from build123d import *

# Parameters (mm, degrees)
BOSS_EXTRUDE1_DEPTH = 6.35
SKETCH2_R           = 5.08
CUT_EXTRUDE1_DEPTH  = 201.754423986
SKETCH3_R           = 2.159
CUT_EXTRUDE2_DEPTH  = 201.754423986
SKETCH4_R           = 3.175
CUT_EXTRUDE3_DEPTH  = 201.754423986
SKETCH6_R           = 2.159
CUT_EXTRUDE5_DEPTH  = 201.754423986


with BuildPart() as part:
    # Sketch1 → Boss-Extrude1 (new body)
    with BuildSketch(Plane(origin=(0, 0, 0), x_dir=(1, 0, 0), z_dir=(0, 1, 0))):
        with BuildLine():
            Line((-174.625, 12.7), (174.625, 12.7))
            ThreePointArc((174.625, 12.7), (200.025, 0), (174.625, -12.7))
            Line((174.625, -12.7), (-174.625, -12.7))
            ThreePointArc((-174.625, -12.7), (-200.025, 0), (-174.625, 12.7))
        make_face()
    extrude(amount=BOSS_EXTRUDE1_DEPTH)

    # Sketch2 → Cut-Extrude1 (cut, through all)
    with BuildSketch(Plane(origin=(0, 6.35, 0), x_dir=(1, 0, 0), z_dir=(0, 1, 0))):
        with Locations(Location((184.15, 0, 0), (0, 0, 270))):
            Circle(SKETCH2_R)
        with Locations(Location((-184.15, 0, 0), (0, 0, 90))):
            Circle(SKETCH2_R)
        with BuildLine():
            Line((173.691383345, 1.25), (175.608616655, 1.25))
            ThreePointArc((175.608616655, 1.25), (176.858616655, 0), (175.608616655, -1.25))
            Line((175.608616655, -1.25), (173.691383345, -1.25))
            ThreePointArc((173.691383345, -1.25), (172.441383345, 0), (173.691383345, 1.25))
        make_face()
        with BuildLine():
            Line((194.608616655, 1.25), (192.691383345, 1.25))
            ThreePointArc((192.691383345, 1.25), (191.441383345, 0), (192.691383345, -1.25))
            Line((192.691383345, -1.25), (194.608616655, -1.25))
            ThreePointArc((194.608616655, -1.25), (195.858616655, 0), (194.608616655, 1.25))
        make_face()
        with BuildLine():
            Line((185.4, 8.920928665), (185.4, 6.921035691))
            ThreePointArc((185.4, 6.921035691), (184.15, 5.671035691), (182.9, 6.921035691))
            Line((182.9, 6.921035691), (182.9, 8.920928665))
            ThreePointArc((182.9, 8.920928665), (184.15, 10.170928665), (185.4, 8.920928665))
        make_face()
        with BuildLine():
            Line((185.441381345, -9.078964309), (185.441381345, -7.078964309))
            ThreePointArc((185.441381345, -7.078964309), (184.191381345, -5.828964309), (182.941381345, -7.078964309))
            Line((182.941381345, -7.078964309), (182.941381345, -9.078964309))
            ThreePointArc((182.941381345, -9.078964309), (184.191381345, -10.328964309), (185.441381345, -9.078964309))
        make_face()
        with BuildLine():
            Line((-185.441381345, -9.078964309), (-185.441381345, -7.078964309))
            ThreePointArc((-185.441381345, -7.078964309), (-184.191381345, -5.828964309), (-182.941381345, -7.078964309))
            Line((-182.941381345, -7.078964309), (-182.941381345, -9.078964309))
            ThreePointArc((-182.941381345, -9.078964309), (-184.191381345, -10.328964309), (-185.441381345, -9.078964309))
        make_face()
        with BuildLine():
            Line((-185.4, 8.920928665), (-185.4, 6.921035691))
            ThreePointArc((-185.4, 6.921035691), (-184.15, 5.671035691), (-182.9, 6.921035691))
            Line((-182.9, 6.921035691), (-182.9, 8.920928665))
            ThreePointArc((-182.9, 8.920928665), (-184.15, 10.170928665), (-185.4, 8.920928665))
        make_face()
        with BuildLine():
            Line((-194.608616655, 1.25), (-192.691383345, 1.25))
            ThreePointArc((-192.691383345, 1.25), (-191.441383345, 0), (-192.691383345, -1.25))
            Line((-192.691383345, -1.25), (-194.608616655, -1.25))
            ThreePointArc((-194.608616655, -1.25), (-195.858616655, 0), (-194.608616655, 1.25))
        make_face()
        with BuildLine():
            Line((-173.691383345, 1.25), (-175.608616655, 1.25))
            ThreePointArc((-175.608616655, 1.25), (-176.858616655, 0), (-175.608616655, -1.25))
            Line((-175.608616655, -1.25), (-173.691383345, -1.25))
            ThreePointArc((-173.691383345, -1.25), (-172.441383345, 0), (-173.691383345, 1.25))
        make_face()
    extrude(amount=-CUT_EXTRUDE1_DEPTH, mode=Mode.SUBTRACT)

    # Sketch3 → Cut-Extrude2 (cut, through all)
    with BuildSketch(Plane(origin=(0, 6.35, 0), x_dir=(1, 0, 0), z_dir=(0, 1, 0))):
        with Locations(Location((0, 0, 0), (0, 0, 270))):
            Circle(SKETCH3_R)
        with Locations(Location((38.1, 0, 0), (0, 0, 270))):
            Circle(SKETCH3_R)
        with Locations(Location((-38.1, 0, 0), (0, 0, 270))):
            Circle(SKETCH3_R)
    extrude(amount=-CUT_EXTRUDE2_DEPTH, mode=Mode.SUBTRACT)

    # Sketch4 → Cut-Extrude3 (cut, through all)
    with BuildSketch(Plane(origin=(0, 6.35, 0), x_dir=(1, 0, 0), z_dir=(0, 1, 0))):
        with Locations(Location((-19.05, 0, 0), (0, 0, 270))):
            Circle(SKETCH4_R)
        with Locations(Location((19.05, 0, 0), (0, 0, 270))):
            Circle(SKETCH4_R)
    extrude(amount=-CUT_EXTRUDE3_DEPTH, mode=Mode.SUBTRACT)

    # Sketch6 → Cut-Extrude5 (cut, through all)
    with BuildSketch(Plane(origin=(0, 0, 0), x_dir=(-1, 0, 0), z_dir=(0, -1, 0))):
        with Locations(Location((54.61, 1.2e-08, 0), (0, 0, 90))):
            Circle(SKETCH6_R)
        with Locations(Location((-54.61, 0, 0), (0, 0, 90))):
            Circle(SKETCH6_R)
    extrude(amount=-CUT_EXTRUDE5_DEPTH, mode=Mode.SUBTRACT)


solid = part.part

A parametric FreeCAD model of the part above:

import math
import FreeCAD as App
import Part
import Sketcher
from FreeCAD import Vector
Q = App.Units.Quantity

doc = App.newDocument("Part")
body = doc.addObject("PartDesign::Body", "Body")

sketch1 = doc.addObject("Sketcher::SketchObject", "Sketch")
body.addObject(sketch1)
sketch1.AttachmentSupport = (doc.XZ_Plane, [""])
sketch1.MapMode = "FlatFace"
sketch1.addGeometry([
    Part.LineSegment(Vector(175, -13, 0), Vector(-175, -13, 0)),
    Part.ArcOfCircle(Part.Circle(Vector(-184, 0, 0), Vector(0, 0, 1), 16), math.radians(53), math.radians(307)),
    Part.LineSegment(Vector(-175, 13, 0), Vector(175, 13, 0)),
    Part.ArcOfCircle(Part.Circle(Vector(184, 0, 0), Vector(0, 0, 1), 16), math.radians(-127), math.radians(127)),
], False)
sketch1.addConstraint([
    Sketcher.Constraint("Coincident", 0, 2, 1, 2),
    Sketcher.Constraint("Coincident", 1, 1, 2, 1),
    Sketcher.Constraint("Coincident", 2, 2, 3, 2),
    Sketcher.Constraint("Coincident", 3, 1, 0, 1),
    Sketcher.Constraint("Horizontal", 0),
    Sketcher.Constraint("Horizontal", 2),
    Sketcher.Constraint("Equal", 1, 3),
    Sketcher.Constraint("Symmetric", 1, 3, 3, 3, -1, 1),
    Sketcher.Constraint("Symmetric", 0, 2, 1, 1, -1),
    Sketcher.Constraint("Radius", 1, Q("0.625 in")),
    Sketcher.Constraint("DistanceY", 0, 2, 1, 1, Q("1 in")),
    Sketcher.Constraint("DistanceX", 0, 2, 0, 1, Q("13.75 in")),
])
pad1 = doc.addObject("PartDesign::Pad", "Pad")
body.addObject(pad1)
pad1.Profile = sketch1
pad1.Length = Q("0.25 in")
pad1.Reversed = True

sketch2 = doc.addObject("Sketcher::SketchObject", "Sketch001")
body.addObject(sketch2)
sketch2.AttachmentSupport = (doc.XZ_Plane, [""])
sketch2.MapMode = "FlatFace"
sketch2.AttachmentOffset = App.Placement(Vector(0, 0, -0.25 * 25.4), App.Rotation())
sketch2.addGeometry([
    Part.Circle(Vector(184.2, 0, 0), Vector(0, 0, 1), 5.1),
    Part.Circle(Vector(-184.2, 0, 0), Vector(0, 0, 1), 5.1),
    Part.LineSegment(Vector(175.6, -1.2, 0), Vector(173.7, -1.2, 0)),
    Part.ArcOfCircle(Part.Circle(Vector(173.7, 0, 0), Vector(0, 0, 1), 1.2), math.radians(90), math.radians(270)),
    Part.LineSegment(Vector(173.7, 1.2, 0), Vector(175.6, 1.2, 0)),
    Part.ArcOfCircle(Part.Circle(Vector(175.6, 0, 0), Vector(0, 0, 1), 1.2), math.radians(-90), math.radians(90)),
    Part.LineSegment(Vector(194.6, -1.2, 0), Vector(192.7, -1.2, 0)),
    Part.ArcOfCircle(Part.Circle(Vector(192.7, 0, 0), Vector(0, 0, 1), 1.2), math.radians(90), math.radians(270)),
    Part.LineSegment(Vector(192.7, 1.2, 0), Vector(194.6, 1.2, 0)),
    Part.ArcOfCircle(Part.Circle(Vector(194.6, 0, 0), Vector(0, 0, 1), 1.2), math.radians(-90), math.radians(90)),
    Part.LineSegment(Vector(185.4, -6.9, 0), Vector(185.4, -8.9, 0)),
    Part.ArcOfCircle(Part.Circle(Vector(184.2, -8.9, 0), Vector(0, 0, 1), 1.2), math.radians(180), math.radians(360)),
    Part.LineSegment(Vector(182.9, -8.9, 0), Vector(182.9, -6.9, 0)),
    Part.ArcOfCircle(Part.Circle(Vector(184.2, -6.9, 0), Vector(0, 0, 1), 1.2), math.radians(0), math.radians(180)),
    Part.LineSegment(Vector(185.4, 9.1, 0), Vector(185.4, 7.1, 0)),
    Part.ArcOfCircle(Part.Circle(Vector(184.2, 7.1, 0), Vector(0, 0, 1), 1.2), math.radians(180), math.radians(360)),
    Part.LineSegment(Vector(182.9, 7.1, 0), Vector(182.9, 9.1, 0)),
    Part.ArcOfCircle(Part.Circle(Vector(184.2, 9.1, 0), Vector(0, 0, 1), 1.2), math.radians(0), math.radians(180)),
    Part.LineSegment(Vector(-185.4, 7.1, 0), Vector(-185.4, 9.1, 0)),
    Part.ArcOfCircle(Part.Circle(Vector(-184.2, 9.1, 0), Vector(0, 0, 1), 1.2), math.radians(0), math.radians(180)),
    Part.LineSegment(Vector(-182.9, 9.1, 0), Vector(-182.9, 7.1, 0)),
    Part.ArcOfCircle(Part.Circle(Vector(-184.2, 7.1, 0), Vector(0, 0, 1), 1.2), math.radians(180), math.radians(360)),
    Part.LineSegment(Vector(-185.4, -8.9, 0), Vector(-185.4, -6.9, 0)),
    Part.ArcOfCircle(Part.Circle(Vector(-184.2, -6.9, 0), Vector(0, 0, 1), 1.2), math.radians(0), math.radians(180)),
    Part.LineSegment(Vector(-182.9, -6.9, 0), Vector(-182.9, -8.9, 0)),
    Part.ArcOfCircle(Part.Circle(Vector(-184.2, -8.9, 0), Vector(0, 0, 1), 1.2), math.radians(180), math.radians(360)),
    Part.LineSegment(Vector(-192.7, -1.2, 0), Vector(-194.6, -1.2, 0)),
    Part.ArcOfCircle(Part.Circle(Vector(-194.6, 0, 0), Vector(0, 0, 1), 1.2), math.radians(90), math.radians(270)),
    Part.LineSegment(Vector(-194.6, 1.2, 0), Vector(-192.7, 1.2, 0)),
    Part.ArcOfCircle(Part.Circle(Vector(-192.7, 0, 0), Vector(0, 0, 1), 1.2), math.radians(-90), math.radians(90)),
    Part.LineSegment(Vector(-173.7, -1.2, 0), Vector(-175.6, -1.2, 0)),
    Part.ArcOfCircle(Part.Circle(Vector(-175.6, 0, 0), Vector(0, 0, 1), 1.2), math.radians(90), math.radians(270)),
    Part.LineSegment(Vector(-175.6, 1.2, 0), Vector(-173.7, 1.2, 0)),
    Part.ArcOfCircle(Part.Circle(Vector(-173.7, 0, 0), Vector(0, 0, 1), 1.2), math.radians(-90), math.radians(90)),
], False)
sketch2.addConstraint([
    Sketcher.Constraint("Tangent", 2, 2, 3, 2),
    Sketcher.Constraint("Tangent", 3, 1, 4, 1),
    Sketcher.Constraint("Tangent", 4, 2, 5, 2),
    Sketcher.Constraint("Tangent", 5, 1, 2, 1),
    Sketcher.Constraint("Tangent", 6, 2, 7, 2),
    Sketcher.Constraint("Tangent", 7, 1, 8, 1),
    Sketcher.Constraint("Tangent", 8, 2, 9, 2),
    Sketcher.Constraint("Tangent", 9, 1, 6, 1),
    Sketcher.Constraint("Tangent", 10, 2, 11, 2),
    Sketcher.Constraint("Tangent", 11, 1, 12, 1),
    Sketcher.Constraint("Tangent", 12, 2, 13, 2),
    Sketcher.Constraint("Tangent", 13, 1, 10, 1),
    Sketcher.Constraint("Tangent", 14, 2, 15, 2),
    Sketcher.Constraint("Tangent", 15, 1, 16, 1),
    Sketcher.Constraint("Tangent", 16, 2, 17, 2),
    Sketcher.Constraint("Tangent", 17, 1, 14, 1),
    Sketcher.Constraint("Tangent", 18, 2, 19, 2),
    Sketcher.Constraint("Tangent", 19, 1, 20, 1),
    Sketcher.Constraint("Tangent", 20, 2, 21, 2),
    Sketcher.Constraint("Tangent", 21, 1, 18, 1),
    Sketcher.Constraint("Tangent", 22, 2, 23, 2),
    Sketcher.Constraint("Tangent", 23, 1, 24, 1),
    Sketcher.Constraint("Tangent", 24, 2, 25, 2),
    Sketcher.Constraint("Tangent", 25, 1, 22, 1),
    Sketcher.Constraint("Tangent", 26, 2, 27, 2),
    Sketcher.Constraint("Tangent", 27, 1, 28, 1),
    Sketcher.Constraint("Tangent", 28, 2, 29, 2),
    Sketcher.Constraint("Tangent", 29, 1, 26, 1),
    Sketcher.Constraint("Tangent", 30, 2, 31, 2),
    Sketcher.Constraint("Tangent", 31, 1, 32, 1),
    Sketcher.Constraint("Tangent", 32, 2, 33, 2),
    Sketcher.Constraint("Tangent", 33, 1, 30, 1),
    Sketcher.Constraint("Horizontal", 2),
    Sketcher.Constraint("Horizontal", 4),
    Sketcher.Constraint("Horizontal", 6),
    Sketcher.Constraint("Horizontal", 8),
    Sketcher.Constraint("Vertical", 10),
    Sketcher.Constraint("Vertical", 12),
    Sketcher.Constraint("Vertical", 14),
    Sketcher.Constraint("Vertical", 16),
    Sketcher.Constraint("Vertical", 18),
    Sketcher.Constraint("Vertical", 20),
    Sketcher.Constraint("Vertical", 22),
    Sketcher.Constraint("Vertical", 24),
    Sketcher.Constraint("Horizontal", 26),
    Sketcher.Constraint("Horizontal", 28),
    Sketcher.Constraint("Horizontal", 30),
    Sketcher.Constraint("Horizontal", 32),
    Sketcher.Constraint("Equal", 0, 1),
    Sketcher.Constraint("Equal", 5, 7),
    Sketcher.Constraint("Equal", 9, 11),
    Sketcher.Constraint("Equal", 13, 15),
    Sketcher.Constraint("Equal", 17, 19),
    Sketcher.Constraint("Equal", 21, 23),
    Sketcher.Constraint("Equal", 25, 27),
    Sketcher.Constraint("Equal", 29, 31),
    Sketcher.Constraint("Symmetric", 0, 3, 1, 3, -1, 1),
    Sketcher.Constraint("Symmetric", 9, 3, 27, 3, -1, 1),
    Sketcher.Constraint("Symmetric", 5, 3, 31, 3, -1, 1),
    Sketcher.Constraint("Symmetric", 17, 3, 19, 3, -2),
    Sketcher.Constraint("Symmetric", 13, 3, 23, 3, -2),
    Sketcher.Constraint("Symmetric", 7, 3, 29, 3, -2),
    Sketcher.Constraint("Symmetric", 3, 3, 33, 3, -2),
    Sketcher.Constraint("PointOnObject", 0, 3, -1),
    Sketcher.Constraint("Horizontal", 15, 3, 21, 3),
    Sketcher.Constraint("Horizontal", 11, 3, 25, 3),
    Sketcher.Constraint("Vertical", 0, 3, 11, 3),
    Sketcher.Constraint("Equal", 4, 6),
    Sketcher.Constraint("Diameter", 0, Q("0.4 in")),
    Sketcher.Constraint("DistanceX", 1, 3, 0, 3, Q("14.5 in")),
    Sketcher.Constraint("Radius", 3, 1.25),
    Sketcher.Constraint("DistanceY", 14, 2, 14, 1, 2.0),
    Sketcher.Constraint("DistanceX", 3, 3, 7, 3, 19.0),
    Sketcher.Constraint("DistanceX", 15, 3, 7, 3, 8.500002),
    Sketcher.Constraint("DistanceY", 23, 3, 21, 3, 14.0),
    Sketcher.Constraint("DistanceX", 2, 2, 2, 1, 1.917233),
    Sketcher.Constraint("DistanceY", 10, 2, 10, 1, 1.999893),
    Sketcher.Constraint("DistanceY", 11, 3, -1, 1, 8.920929),
    Sketcher.Constraint("DistanceX", -1, 1, 15, 3, 184.191381),
])
pocket1 = doc.addObject("PartDesign::Pocket", "Pocket")
body.addObject(pocket1)
pocket1.Profile = sketch2
pocket1.Type = "ThroughAll"
pocket1.Reversed = True

sketch3 = doc.addObject("Sketcher::SketchObject", "Sketch002")
body.addObject(sketch3)
sketch3.AttachmentSupport = (doc.XZ_Plane, [""])
sketch3.MapMode = "FlatFace"
sketch3.AttachmentOffset = App.Placement(Vector(0, 0, -0.25 * 25.4), App.Rotation())
sketch3.addGeometry([
    Part.Circle(Vector(0, 0, 0), Vector(0, 0, 1), 2.2),
    Part.Circle(Vector(38.1, 0, 0), Vector(0, 0, 1), 2.2),
    Part.Circle(Vector(-38.1, 0, 0), Vector(0, 0, 1), 2.2),
], False)
sketch3.addConstraint([
    Sketcher.Constraint("Coincident", 0, 3, -1, 1),
    Sketcher.Constraint("Equal", 0, 1),
    Sketcher.Constraint("Equal", 1, 2),
    Sketcher.Constraint("Symmetric", 1, 3, 2, 3, -1, 1),
    Sketcher.Constraint("PointOnObject", 1, 3, -1),
    Sketcher.Constraint("Diameter", 0, Q("0.17 in")),
    Sketcher.Constraint("DistanceX", 2, 3, 1, 3, Q("3 in")),
])
pocket2 = doc.addObject("PartDesign::Pocket", "Pocket001")
body.addObject(pocket2)
pocket2.Profile = sketch3
pocket2.Type = "ThroughAll"
pocket2.Reversed = True

sketch4 = doc.addObject("Sketcher::SketchObject", "Sketch003")
body.addObject(sketch4)
sketch4.AttachmentSupport = (doc.XZ_Plane, [""])
sketch4.MapMode = "FlatFace"
sketch4.AttachmentOffset = App.Placement(Vector(0, 0, -0.25 * 25.4), App.Rotation())
sketch4.addGeometry([
    Part.Circle(Vector(-19.1, 0, 0), Vector(0, 0, 1), 3.2),
    Part.Circle(Vector(19.1, 0, 0), Vector(0, 0, 1), 3.2),
], False)
sketch4.addConstraint([
    Sketcher.Constraint("Equal", 0, 1),
    Sketcher.Constraint("Symmetric", 0, 3, 1, 3, -1, 1),
    Sketcher.Constraint("PointOnObject", 0, 3, -1),
    Sketcher.Constraint("Diameter", 0, Q("0.25 in")),
    Sketcher.Constraint("DistanceX", 0, 3, 1, 3, Q("1.5 in")),
])
pocket3 = doc.addObject("PartDesign::Pocket", "Pocket002")
body.addObject(pocket3)
pocket3.Profile = sketch4
pocket3.Type = "ThroughAll"
pocket3.Reversed = True

sketch5 = doc.addObject("Sketcher::SketchObject", "Sketch004")
body.addObject(sketch5)
sketch5.AttachmentSupport = (doc.XZ_Plane, [""])
sketch5.MapMode = "FlatFace"
sketch5.addGeometry([
    Part.Circle(Vector(-54.6, 0, 0), Vector(0, 0, 1), 2.2),
    Part.Circle(Vector(54.6, 0, 0), Vector(0, 0, 1), 2.2),
], False)
sketch5.addConstraint([
    Sketcher.Constraint("Equal", 0, 1),
    Sketcher.Constraint("Symmetric", 0, 3, 1, 3, -1, 1),
    Sketcher.Constraint("PointOnObject", 0, 3, -1),
    Sketcher.Constraint("Diameter", 0, Q("0.17 in")),
    Sketcher.Constraint("DistanceX", 0, 3, 1, 3, Q("4.3 in")),
])
pocket4 = doc.addObject("PartDesign::Pocket", "Pocket003")
body.addObject(pocket4)
pocket4.Profile = sketch5
pocket4.Type = "ThroughAll"

doc.recompute()
